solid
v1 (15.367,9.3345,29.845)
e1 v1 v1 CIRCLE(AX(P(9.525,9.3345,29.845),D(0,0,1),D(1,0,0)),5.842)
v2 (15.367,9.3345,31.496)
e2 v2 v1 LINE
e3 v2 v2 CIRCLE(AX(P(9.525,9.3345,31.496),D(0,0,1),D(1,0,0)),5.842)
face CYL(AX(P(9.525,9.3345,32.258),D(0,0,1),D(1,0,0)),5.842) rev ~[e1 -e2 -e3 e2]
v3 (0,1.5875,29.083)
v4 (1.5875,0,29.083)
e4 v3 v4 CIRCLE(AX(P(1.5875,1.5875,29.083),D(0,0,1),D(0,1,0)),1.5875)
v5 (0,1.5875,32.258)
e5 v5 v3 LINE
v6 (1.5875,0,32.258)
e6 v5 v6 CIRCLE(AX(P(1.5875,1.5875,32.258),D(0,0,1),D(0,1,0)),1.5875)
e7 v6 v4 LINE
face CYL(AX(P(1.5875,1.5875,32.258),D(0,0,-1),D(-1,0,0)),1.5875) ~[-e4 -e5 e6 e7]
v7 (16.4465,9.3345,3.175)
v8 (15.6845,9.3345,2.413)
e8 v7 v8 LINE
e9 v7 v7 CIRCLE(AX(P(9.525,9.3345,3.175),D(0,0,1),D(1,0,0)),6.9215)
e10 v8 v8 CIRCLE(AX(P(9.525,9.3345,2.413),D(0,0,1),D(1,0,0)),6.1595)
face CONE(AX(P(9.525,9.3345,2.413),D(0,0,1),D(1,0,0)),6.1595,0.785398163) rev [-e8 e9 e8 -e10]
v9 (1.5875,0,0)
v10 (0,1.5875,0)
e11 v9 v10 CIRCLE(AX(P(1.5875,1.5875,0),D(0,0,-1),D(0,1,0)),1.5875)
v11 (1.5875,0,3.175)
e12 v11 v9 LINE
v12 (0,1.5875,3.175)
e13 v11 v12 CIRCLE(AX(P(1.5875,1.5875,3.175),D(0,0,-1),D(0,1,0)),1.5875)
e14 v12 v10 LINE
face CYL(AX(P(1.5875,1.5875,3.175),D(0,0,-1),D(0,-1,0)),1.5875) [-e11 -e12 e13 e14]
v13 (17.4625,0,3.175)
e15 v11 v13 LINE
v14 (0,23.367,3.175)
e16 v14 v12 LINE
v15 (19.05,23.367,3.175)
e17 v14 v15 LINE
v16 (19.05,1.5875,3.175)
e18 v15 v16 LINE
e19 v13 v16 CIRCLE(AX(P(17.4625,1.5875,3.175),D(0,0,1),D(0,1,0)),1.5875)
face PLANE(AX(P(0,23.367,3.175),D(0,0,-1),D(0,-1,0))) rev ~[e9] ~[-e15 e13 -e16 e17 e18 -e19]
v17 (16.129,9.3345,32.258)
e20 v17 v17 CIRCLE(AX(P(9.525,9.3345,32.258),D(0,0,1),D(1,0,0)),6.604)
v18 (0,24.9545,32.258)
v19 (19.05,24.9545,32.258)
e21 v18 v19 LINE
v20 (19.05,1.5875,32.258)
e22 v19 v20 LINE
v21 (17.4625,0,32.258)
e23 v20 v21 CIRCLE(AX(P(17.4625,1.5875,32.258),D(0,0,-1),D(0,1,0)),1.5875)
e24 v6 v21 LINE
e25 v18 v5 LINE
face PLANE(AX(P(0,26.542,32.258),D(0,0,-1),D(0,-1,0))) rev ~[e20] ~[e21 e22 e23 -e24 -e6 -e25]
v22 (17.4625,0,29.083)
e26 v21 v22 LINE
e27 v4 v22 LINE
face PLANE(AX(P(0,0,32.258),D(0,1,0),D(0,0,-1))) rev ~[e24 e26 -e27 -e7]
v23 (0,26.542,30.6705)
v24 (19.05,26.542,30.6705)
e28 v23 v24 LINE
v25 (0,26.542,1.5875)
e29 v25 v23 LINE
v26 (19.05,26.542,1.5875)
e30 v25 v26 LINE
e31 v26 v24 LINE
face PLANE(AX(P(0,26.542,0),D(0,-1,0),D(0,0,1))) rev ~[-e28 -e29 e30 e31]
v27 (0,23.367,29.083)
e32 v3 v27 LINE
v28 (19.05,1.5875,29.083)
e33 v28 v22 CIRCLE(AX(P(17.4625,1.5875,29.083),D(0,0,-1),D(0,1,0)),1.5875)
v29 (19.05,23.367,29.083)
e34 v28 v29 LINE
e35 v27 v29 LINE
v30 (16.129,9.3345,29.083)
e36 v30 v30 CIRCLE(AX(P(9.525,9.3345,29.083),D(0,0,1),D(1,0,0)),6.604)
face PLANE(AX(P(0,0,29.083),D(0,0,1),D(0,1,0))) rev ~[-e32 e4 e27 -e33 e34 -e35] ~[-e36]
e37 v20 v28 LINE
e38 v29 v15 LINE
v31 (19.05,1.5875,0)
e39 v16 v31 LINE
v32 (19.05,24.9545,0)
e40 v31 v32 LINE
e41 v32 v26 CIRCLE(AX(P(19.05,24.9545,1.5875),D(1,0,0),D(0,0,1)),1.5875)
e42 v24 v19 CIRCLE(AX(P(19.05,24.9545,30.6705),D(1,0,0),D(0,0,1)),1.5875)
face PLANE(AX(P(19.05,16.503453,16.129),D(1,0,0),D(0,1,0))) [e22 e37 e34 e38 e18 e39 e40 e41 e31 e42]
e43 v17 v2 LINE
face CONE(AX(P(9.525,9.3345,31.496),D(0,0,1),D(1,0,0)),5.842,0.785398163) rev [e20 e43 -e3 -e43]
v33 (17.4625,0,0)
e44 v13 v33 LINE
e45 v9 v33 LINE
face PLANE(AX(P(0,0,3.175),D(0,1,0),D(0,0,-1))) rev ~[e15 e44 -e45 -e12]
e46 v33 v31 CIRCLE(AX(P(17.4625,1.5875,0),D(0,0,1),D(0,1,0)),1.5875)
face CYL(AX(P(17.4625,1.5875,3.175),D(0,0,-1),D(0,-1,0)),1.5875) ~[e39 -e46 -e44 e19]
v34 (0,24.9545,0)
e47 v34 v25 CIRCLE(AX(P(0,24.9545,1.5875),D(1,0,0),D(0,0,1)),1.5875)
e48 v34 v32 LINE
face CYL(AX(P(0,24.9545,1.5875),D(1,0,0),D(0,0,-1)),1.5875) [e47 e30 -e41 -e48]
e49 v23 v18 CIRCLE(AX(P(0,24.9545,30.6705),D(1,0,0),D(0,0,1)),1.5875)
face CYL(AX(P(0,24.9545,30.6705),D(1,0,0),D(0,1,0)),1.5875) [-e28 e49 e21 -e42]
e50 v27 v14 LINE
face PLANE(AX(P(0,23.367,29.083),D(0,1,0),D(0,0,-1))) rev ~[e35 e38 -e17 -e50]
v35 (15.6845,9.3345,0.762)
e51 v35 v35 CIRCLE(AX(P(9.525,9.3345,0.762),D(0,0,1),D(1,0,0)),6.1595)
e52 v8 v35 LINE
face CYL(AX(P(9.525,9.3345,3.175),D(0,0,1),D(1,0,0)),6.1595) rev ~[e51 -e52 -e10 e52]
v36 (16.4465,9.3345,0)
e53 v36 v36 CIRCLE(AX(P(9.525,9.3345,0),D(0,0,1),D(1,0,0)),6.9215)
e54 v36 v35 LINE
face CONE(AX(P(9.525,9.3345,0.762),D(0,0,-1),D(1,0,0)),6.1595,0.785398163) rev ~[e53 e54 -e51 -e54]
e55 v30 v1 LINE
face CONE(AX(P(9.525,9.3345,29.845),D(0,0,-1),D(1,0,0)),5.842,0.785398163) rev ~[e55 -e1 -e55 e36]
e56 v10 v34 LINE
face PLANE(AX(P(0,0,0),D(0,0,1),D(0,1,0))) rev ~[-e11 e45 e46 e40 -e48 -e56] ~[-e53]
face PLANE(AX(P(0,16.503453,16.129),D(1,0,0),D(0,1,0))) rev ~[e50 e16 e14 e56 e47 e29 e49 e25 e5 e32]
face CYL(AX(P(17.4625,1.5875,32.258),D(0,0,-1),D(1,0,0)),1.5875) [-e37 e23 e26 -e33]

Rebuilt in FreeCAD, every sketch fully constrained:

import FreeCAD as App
import Part
import Sketcher
Q = App.Units.Quantity


def edges_at(feature, points):
    """Names of the edges that pass closest to the given points."""
    edges = feature.Shape.Edges
    near = lambda p: min(range(len(edges)), key=lambda i: edges[i].distToShape(Part.Vertex(*p))[0])
    return sorted({f"Edge{near(p) + 1}" for p in points})

doc = App.newDocument("Part")
params = doc.addObject("Spreadsheet::Sheet", "Params")
for row, (alias, value) in enumerate([
    ("sketch1_height", "1.27 in"),
    ("sketch1_height2", "1.02 in"),
    ("pad1_length", "0.75 in"),
    ("sketch2_diameter", "0.485 in"),
    ("pocket1_length", "1 in"),
    ("sketch3_diameter", "0.46 in"),
    ("fillet_radius", "0.0625 in"),
    ("chamfer_size", "0.03 in"),
], start=1):
    params.set(f"A{row}", alias)
    params.set(f"B{row}", "=" + value)
    params.setAlias(f"B{row}", alias)

body = doc.addObject("PartDesign::Body", "Body")

# Sketch on YZ plane
sketch1 = body.newObject("Sketcher::SketchObject", "Sketch")
sketch1.AttachmentSupport = (doc.getObject("YZ_Plane"), [""])
sketch1.MapMode = "FlatFace"
sketch1.addGeometry([
    Part.LineSegment(App.Vector(0, 3.2, 0), App.Vector(0, 0, 0)),  # 0
    Part.LineSegment(App.Vector(0, 0, 0), App.Vector(26.5, 0, 0)),  # 1
    Part.LineSegment(App.Vector(26.5, 0, 0), App.Vector(26.5, 32.3, 0)),  # 2
    Part.LineSegment(App.Vector(26.5, 32.3, 0), App.Vector(0, 32.3, 0)),  # 3
    Part.LineSegment(App.Vector(0, 32.3, 0), App.Vector(0, 29.1, 0)),  # 4
    Part.LineSegment(App.Vector(0, 29.1, 0), App.Vector(23.4, 29.1, 0)),  # 5
    Part.LineSegment(App.Vector(23.4, 29.1, 0), App.Vector(23.4, 3.2, 0)),  # 6
    Part.LineSegment(App.Vector(23.4, 3.2, 0), App.Vector(0, 3.2, 0)),  # 7
], False)
sketch1.addConstraint([
    Sketcher.Constraint("Coincident", 0, 2, 1, 1),
    Sketcher.Constraint("Coincident", 1, 2, 2, 1),
    Sketcher.Constraint("Coincident", 2, 2, 3, 1),
    Sketcher.Constraint("Coincident", 3, 2, 4, 1),
    Sketcher.Constraint("Coincident", 4, 2, 5, 1),
    Sketcher.Constraint("Coincident", 5, 2, 6, 1),
    Sketcher.Constraint("Coincident", 6, 2, 7, 1),
    Sketcher.Constraint("Coincident", 7, 2, 0, 1),
    Sketcher.Constraint("Vertical", 0),
    Sketcher.Constraint("Horizontal", 1),
    Sketcher.Constraint("Vertical", 2),
    Sketcher.Constraint("Horizontal", 3),
    Sketcher.Constraint("Vertical", 4),
    Sketcher.Constraint("Horizontal", 5),
    Sketcher.Constraint("Vertical", 6),
    Sketcher.Constraint("Horizontal", 7),
    Sketcher.Constraint("Coincident", 0, 2, -1, 1),
    Sketcher.Constraint("PointOnObject", 3, 2, -2),
    Sketcher.Constraint("Equal", 0, 4),
    Sketcher.Constraint("DistanceY", 2, 1, 2, 2, Q("1.27 in")),
    Sketcher.Constraint("DistanceY", 6, 2, 6, 1, Q("1.02 in")),
    Sketcher.Constraint("DistanceX", 5, 2, 2, 2, Q("0.125 in")),
    Sketcher.Constraint("DistanceX", 1, 1, 1, 2, Q("26.542 mm")),
])
sketch1.setExpression("Constraints[19]", "Params.sketch1_height")
sketch1.setExpression("Constraints[20]", "Params.sketch1_height2")
pad1 = body.newObject("PartDesign::Pad", "Pad")
pad1.Profile = sketch1
pad1.setExpression("Length", "Params.pad1_length")

# Sketch on XY plane
sketch2 = body.newObject("Sketcher::SketchObject", "Sketch001")
sketch2.AttachmentSupport = (doc.getObject("XY_Plane"), [""])
sketch2.MapMode = "FlatFace"
sketch2.AttachmentOffset = App.Placement(App.Vector(0, 0, 0.125 * 25.4), App.Rotation())
sketch2.addGeometry(Part.Circle(App.Vector(10, 9, 0), App.Vector(0, 0, 1), 6), False)
sketch2.addConstraint([
    Sketcher.Constraint("Diameter", 0, Q("0.485 in")),
    Sketcher.Constraint("DistanceX", -1, 1, 0, 3, Q("0.375 in")),
    Sketcher.Constraint("DistanceY", -1, 1, 0, 3, Q("0.3675 in")),
])
sketch2.setExpression("Constraints[0]", "Params.sketch2_diameter")
pocket1 = body.newObject("PartDesign::Pocket", "Pocket")
pocket1.Profile = sketch2
pocket1.setExpression("Length", "Params.pocket1_length")

# Sketch on XY plane
sketch3 = body.newObject("Sketcher::SketchObject", "Sketch002")
sketch3.AttachmentSupport = (doc.getObject("XY_Plane"), [""])
sketch3.MapMode = "FlatFace"
sketch3.AttachmentOffset = App.Placement(App.Vector(0, 0, 1.27 * 25.4), App.Rotation())
sketch3.addGeometry(Part.Circle(App.Vector(10, 9, 0), App.Vector(0, 0, 1), 6), False)
sketch3.addConstraint([
    Sketcher.Constraint("Diameter", 0, Q("0.46 in")),
    Sketcher.Constraint("DistanceX", -1, 1, 0, 3, Q("0.375 in")),
    Sketcher.Constraint("DistanceY", -1, 1, 0, 3, Q("0.3675 in")),
])
sketch3.setExpression("Constraints[0]", "Params.sketch3_diameter")
pocket2 = body.newObject("PartDesign::Pocket", "Pocket001")
pocket2.Profile = sketch3
pocket2.Type = "ThroughAll"
doc.recompute()

fillet = body.newObject("PartDesign::Fillet", "Fillet")
fillet.Base = (pocket2, edges_at(pocket2, [
    (19.05, 0, 30.671),
    (0, 0, 30.671),
    (0, 0, 1.587),
    (19.05, 0, 1.587),
    (9.525, 26.542, 32.258),
    (9.525, 26.542, 0),
]))
fillet.setExpression("Radius", "Params.fillet_radius")
doc.recompute()

chamfer = body.newObject("PartDesign::Chamfer", "Chamfer")
chamfer.Base = (fillet, edges_at(fillet, [
    (3.365, 9.335, 0),
    (3.683, 9.335, 29.083),
    (3.683, 9.335, 32.258),
    (3.365, 9.335, 3.175),
]))
chamfer.setExpression("Size", "Params.chamfer_size")

doc.recompute()
